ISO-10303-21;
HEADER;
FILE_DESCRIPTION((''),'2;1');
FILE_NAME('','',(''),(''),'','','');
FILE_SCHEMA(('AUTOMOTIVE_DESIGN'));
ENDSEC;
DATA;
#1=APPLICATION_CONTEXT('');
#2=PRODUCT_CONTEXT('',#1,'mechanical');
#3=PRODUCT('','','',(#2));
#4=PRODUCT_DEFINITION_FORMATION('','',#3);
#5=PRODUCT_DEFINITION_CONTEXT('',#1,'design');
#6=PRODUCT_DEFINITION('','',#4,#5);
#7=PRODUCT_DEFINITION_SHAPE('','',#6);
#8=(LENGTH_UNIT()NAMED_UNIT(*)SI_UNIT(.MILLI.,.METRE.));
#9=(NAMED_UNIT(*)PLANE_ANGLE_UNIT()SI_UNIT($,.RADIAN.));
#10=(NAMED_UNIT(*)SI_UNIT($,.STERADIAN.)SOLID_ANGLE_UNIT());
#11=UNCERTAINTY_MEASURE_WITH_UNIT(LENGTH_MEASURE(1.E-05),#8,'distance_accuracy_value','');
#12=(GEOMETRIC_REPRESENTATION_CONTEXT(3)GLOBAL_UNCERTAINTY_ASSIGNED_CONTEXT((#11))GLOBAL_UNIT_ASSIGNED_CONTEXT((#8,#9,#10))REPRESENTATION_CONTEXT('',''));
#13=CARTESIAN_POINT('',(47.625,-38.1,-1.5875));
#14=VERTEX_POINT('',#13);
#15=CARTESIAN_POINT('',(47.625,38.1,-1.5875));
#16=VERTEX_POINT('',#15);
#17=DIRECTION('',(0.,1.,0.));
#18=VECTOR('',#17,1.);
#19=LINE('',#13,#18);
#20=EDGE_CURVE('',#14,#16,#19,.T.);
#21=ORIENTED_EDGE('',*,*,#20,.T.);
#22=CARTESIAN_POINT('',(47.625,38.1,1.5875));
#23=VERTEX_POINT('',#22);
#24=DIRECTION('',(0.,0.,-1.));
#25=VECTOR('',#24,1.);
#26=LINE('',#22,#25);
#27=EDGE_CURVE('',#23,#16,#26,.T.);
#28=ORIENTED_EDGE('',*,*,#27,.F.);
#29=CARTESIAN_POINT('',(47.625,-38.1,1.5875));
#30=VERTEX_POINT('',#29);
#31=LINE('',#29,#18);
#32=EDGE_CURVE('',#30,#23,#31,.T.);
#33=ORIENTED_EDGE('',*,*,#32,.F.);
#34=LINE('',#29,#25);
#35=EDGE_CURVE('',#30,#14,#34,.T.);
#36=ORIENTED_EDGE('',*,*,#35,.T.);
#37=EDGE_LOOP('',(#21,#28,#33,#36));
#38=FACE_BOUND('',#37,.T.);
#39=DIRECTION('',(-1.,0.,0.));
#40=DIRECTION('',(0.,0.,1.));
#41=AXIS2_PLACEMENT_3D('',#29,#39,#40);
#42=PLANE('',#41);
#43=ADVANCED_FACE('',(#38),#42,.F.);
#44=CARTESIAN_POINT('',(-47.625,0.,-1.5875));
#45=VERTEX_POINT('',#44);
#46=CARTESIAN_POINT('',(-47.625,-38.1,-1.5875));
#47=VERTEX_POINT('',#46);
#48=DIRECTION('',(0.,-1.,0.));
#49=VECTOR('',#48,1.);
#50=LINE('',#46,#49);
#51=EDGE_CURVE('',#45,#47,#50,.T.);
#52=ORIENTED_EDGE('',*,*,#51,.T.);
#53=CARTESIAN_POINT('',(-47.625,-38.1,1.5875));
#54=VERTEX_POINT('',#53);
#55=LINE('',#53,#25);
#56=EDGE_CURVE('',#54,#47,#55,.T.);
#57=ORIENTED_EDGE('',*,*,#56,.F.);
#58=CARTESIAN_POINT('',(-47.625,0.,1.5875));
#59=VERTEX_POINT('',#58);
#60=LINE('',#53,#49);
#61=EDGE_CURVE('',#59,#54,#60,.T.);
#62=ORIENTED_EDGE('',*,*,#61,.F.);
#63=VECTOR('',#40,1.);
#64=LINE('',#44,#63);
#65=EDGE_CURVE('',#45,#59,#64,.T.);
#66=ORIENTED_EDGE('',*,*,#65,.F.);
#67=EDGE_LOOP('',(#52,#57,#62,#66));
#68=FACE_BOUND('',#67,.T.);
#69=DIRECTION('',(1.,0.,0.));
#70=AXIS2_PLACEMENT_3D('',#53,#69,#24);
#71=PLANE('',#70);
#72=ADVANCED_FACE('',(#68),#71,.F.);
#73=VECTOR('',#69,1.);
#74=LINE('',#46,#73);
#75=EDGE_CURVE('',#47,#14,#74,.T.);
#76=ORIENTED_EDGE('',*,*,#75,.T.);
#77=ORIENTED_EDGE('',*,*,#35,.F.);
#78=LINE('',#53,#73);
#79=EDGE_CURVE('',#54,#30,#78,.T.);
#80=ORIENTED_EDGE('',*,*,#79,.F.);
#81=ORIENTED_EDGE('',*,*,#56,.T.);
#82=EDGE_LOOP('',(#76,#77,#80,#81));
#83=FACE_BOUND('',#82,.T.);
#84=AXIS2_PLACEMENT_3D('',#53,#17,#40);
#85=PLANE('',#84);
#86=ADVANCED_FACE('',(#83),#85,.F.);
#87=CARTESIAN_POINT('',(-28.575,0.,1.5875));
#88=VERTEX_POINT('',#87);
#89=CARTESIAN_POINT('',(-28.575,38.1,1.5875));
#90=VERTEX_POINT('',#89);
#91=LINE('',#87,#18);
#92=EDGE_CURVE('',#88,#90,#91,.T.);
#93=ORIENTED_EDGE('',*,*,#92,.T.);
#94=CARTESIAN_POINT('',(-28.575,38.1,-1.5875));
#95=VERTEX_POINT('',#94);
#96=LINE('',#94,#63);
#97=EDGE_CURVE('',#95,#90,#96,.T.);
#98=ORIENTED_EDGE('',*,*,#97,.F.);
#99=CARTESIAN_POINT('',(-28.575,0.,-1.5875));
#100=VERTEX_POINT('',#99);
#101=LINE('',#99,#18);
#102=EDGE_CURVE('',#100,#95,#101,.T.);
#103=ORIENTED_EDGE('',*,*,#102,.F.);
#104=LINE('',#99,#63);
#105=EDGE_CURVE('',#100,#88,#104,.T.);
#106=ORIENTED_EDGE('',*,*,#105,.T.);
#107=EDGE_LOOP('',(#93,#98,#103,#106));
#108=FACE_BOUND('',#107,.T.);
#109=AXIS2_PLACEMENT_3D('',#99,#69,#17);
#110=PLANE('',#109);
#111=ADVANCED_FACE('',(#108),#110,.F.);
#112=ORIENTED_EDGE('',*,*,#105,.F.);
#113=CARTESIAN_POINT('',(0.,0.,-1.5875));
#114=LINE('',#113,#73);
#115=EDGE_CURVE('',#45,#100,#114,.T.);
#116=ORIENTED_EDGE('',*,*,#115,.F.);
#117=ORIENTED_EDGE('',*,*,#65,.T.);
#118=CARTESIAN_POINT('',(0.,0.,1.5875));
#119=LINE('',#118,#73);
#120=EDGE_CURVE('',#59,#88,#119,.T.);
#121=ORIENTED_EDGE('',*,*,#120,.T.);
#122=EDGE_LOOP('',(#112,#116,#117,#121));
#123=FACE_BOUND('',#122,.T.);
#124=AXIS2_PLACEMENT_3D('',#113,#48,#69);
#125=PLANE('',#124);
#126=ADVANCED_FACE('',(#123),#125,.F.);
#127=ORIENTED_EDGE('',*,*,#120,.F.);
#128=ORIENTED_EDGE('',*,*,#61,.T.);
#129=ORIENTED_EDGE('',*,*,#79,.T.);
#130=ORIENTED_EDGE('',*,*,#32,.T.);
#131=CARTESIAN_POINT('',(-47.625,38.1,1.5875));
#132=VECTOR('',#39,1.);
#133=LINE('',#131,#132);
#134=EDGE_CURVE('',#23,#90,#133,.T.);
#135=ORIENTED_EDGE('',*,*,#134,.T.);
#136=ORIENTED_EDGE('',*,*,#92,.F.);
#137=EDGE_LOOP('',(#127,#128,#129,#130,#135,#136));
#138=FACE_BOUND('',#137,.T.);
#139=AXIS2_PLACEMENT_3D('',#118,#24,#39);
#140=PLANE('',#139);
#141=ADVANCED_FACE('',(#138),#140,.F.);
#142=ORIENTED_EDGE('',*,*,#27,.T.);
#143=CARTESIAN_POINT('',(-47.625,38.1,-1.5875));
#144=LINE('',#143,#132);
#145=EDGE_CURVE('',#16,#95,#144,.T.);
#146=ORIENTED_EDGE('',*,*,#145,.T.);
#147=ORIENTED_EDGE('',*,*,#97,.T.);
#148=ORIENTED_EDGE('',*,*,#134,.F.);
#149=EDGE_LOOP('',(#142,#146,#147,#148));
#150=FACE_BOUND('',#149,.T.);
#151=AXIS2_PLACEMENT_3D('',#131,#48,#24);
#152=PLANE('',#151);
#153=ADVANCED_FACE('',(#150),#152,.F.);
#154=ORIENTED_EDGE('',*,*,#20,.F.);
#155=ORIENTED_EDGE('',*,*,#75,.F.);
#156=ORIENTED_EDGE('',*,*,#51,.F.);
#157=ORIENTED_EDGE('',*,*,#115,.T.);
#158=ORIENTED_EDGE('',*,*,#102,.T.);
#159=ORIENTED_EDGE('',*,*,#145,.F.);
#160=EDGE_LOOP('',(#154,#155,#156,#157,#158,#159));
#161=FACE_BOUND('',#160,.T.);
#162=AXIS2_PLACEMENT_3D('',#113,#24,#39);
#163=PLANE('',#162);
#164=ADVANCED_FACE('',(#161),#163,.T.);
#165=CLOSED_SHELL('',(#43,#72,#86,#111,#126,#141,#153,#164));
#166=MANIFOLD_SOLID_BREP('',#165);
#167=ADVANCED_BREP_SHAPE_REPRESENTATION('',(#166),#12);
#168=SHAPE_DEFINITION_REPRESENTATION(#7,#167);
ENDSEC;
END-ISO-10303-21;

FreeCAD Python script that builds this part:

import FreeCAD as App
import Part
import Sketcher
Q = App.Units.Quantity


def add_polygon(sketch, points):
    """Adds a closed chain of lines whose ends are joined by coincident constraints."""
    first, n = sketch.GeometryCount, len(points)
    for a, b in zip(points, points[1:] + points[:1]):
        sketch.addGeometry(Part.LineSegment(App.Vector(*a, 0), App.Vector(*b, 0)), False)
    for i in range(n):
        sketch.addConstraint(Sketcher.Constraint("Coincident", first + i, 2, first + (i + 1) % n, 1))

doc = App.newDocument("Part")
body = doc.addObject("PartDesign::Body", "Body")

# Sketch on XY plane
sketch1 = body.newObject("Sketcher::SketchObject", "Sketch")
sketch1.AttachmentSupport = (doc.getObject("XY_Plane"), [""])
sketch1.MapMode = "FlatFace"
add_polygon(sketch1, [(-48, 38), (-48, -38), (48, -38), (48, 38)])  # lines 0-3
sketch1.addConstraint(Sketcher.Constraint("Vertical", 0))
sketch1.addConstraint(Sketcher.Constraint("Horizontal", 1))
sketch1.addConstraint(Sketcher.Constraint("Vertical", 2))
sketch1.addConstraint(Sketcher.Constraint("Horizontal", 3))
sketch1.addConstraint(Sketcher.Constraint("Symmetric", 0, 2, 2, 2, -1, 1))
sketch1.addConstraint(Sketcher.Constraint("DistanceY", 0, 2, 0, 1, Q("3 in")))
sketch1.addConstraint(Sketcher.Constraint("DistanceX", 1, 1, 1, 2, Q("3.75 in")))
pad1 = body.newObject("PartDesign::Pad", "Pad")
pad1.Profile = sketch1
pad1.Length = Q("0.125 in")
pad1.Midplane = True

# Sketch on XY plane
sketch2 = body.newObject("Sketcher::SketchObject", "Sketch001")
sketch2.AttachmentSupport = (doc.getObject("XY_Plane"), [""])
sketch2.MapMode = "FlatFace"
sketch2.AttachmentOffset = App.Placement(App.Vector(0, 0, 0.0625 * 25.4), App.Rotation())
add_polygon(sketch2, [(-48, 38), (-48, 0), (-29, 0), (-29, 38)])  # lines 0-3
sketch2.addConstraint(Sketcher.Constraint("Vertical", 0))
sketch2.addConstraint(Sketcher.Constraint("Horizontal", 1))
sketch2.addConstraint(Sketcher.Constraint("Vertical", 2))
sketch2.addConstraint(Sketcher.Constraint("Horizontal", 3))
sketch2.addConstraint(Sketcher.Constraint("PointOnObject", 0, 2, -1))
sketch2.addConstraint(Sketcher.Constraint("DistanceY", 0, 2, 0, 1, Q("1.5 in")))
sketch2.addConstraint(Sketcher.Constraint("DistanceX", 1, 1, 1, 2, Q("0.75 in")))
sketch2.addConstraint(Sketcher.Constraint("DistanceX", 0, 2, -1, 1, Q("1.875 in")))
pocket1 = body.newObject("PartDesign::Pocket", "Pocket")
pocket1.Profile = sketch2
pocket1.Length = Q("0.125 in")

doc.recompute()
